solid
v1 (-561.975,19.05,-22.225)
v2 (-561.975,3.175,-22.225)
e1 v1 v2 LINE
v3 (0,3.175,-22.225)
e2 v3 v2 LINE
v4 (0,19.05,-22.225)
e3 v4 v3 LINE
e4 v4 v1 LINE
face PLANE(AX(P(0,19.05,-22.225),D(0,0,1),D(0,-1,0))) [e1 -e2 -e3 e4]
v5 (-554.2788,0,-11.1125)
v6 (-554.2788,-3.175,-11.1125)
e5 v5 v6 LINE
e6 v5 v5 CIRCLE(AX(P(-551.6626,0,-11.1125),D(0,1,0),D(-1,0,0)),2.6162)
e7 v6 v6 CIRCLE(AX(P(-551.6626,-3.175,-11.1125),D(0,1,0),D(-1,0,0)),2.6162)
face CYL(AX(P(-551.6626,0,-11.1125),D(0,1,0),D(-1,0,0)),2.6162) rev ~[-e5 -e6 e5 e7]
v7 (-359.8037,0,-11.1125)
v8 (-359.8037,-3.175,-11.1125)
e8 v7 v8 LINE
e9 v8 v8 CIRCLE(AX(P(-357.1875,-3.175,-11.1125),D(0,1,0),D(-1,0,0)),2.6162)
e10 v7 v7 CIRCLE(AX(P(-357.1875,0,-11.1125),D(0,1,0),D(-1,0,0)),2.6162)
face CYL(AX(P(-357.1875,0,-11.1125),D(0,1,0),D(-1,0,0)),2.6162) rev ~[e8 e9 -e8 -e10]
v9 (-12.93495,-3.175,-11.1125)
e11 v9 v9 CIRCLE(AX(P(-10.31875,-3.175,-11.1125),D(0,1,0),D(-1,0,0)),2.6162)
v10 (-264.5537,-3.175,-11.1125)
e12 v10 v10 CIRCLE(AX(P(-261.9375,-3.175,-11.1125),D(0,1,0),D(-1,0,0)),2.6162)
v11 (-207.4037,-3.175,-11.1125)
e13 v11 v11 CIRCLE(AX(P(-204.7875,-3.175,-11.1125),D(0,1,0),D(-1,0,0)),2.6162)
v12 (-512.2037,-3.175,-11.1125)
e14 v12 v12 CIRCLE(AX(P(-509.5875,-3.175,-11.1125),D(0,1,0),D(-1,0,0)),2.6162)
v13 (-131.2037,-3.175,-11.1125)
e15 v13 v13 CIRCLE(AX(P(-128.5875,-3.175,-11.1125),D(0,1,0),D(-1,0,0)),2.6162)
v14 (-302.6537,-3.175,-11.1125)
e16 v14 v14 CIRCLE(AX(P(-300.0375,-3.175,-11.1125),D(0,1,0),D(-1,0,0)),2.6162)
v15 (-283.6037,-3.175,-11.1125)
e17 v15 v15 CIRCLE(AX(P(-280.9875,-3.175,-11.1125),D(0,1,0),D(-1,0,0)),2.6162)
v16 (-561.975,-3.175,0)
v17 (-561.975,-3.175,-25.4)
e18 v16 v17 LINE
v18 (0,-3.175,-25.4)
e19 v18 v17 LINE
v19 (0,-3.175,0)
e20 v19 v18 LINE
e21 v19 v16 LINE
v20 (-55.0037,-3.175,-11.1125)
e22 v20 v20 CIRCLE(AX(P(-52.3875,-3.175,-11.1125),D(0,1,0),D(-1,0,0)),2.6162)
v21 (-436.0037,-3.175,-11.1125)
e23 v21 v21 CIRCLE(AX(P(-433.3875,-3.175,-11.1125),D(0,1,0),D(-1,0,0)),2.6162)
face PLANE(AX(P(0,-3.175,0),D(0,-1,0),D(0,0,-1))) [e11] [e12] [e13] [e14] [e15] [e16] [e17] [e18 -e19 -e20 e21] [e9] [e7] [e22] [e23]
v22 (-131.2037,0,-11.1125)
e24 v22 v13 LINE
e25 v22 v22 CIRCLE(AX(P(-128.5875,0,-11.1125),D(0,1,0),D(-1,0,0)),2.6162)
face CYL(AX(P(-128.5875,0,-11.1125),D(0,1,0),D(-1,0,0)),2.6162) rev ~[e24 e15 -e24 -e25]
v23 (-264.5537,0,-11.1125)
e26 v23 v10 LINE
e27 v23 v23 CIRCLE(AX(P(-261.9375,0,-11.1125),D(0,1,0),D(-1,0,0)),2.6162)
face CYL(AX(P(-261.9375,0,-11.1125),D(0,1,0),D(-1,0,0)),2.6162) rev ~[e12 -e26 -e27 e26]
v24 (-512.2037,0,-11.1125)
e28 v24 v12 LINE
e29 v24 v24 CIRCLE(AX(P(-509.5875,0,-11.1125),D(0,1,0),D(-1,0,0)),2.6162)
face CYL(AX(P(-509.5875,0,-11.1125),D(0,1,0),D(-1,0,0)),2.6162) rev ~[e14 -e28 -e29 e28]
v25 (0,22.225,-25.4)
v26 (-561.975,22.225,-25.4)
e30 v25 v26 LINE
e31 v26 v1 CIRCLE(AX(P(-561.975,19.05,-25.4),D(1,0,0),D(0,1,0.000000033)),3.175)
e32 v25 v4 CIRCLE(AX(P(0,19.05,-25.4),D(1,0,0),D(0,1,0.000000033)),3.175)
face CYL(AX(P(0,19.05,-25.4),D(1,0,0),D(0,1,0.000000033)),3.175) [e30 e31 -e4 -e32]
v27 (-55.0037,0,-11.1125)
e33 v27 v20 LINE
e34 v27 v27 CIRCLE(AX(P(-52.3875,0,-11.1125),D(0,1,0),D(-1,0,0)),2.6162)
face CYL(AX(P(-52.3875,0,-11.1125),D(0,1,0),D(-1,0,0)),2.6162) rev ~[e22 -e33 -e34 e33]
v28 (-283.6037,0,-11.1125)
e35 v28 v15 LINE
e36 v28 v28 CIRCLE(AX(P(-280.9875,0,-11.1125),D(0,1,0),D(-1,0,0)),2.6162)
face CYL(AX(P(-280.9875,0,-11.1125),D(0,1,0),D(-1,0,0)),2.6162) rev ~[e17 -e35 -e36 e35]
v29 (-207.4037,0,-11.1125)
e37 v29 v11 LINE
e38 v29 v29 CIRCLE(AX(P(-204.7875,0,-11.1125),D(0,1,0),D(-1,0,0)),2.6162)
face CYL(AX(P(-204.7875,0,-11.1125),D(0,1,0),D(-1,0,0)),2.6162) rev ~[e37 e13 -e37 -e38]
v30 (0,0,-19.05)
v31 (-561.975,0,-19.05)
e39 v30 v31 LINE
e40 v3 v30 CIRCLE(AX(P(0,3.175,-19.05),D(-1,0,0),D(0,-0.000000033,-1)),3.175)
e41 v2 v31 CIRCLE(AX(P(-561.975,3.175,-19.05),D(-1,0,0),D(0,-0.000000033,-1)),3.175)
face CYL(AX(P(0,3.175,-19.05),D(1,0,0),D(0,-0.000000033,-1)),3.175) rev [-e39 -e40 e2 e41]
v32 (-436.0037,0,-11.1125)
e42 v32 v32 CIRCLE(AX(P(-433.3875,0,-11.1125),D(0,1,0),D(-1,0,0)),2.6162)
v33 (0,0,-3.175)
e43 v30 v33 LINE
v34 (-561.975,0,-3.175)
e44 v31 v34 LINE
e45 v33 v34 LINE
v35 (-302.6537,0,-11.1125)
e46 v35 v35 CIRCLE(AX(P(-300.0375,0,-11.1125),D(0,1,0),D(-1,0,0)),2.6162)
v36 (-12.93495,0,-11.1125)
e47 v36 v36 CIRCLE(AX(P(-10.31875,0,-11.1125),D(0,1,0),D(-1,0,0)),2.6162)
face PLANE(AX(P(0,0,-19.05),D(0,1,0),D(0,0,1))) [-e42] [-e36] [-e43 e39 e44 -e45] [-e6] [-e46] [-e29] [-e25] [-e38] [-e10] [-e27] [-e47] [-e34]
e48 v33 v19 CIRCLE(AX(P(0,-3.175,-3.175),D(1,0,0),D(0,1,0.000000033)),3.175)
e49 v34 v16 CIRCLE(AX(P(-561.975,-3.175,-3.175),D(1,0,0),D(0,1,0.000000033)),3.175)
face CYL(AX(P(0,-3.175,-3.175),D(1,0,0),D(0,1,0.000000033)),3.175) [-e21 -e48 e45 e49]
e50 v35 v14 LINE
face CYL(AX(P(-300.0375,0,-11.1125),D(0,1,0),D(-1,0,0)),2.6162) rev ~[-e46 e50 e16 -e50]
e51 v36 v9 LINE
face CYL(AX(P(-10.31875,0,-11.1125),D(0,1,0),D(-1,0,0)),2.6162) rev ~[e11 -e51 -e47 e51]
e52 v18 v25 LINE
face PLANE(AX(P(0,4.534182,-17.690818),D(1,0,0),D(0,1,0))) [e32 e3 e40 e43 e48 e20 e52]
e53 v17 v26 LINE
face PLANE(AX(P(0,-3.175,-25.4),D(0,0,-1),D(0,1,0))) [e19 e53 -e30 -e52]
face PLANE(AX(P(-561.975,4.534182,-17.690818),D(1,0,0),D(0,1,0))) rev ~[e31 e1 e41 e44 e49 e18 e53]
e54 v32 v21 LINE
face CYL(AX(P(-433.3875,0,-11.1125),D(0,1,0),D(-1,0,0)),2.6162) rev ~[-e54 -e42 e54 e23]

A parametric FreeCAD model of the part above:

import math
import FreeCAD as App
import Part
import Sketcher
from FreeCAD import Vector
Q = App.Units.Quantity

doc = App.newDocument("Part")
params = doc.addObject("Spreadsheet::Sheet", "Params")
for row, (alias, value) in enumerate([
    ("sketch1_width", "1 in"),
    ("sketch1_radius", "0.125 in"),
    ("pad1_length", "22.125 in"),
    ("sketch2_diameter", "0.206 in"),
    ("pocket1_length", "1 in"),
], start=1):
    params.set(f"A{row}", alias)
    params.set(f"B{row}", "=" + value)
    params.setAlias(f"B{row}", alias)

body = doc.addObject("PartDesign::Body", "Body")

sketch1 = doc.addObject("Sketcher::SketchObject", "Sketch")
body.addObject(sketch1)
sketch1.AttachmentSupport = (doc.YZ_Plane, [""])
sketch1.MapMode = "FlatFace"
sketch1.addGeometry([
    Part.LineSegment(Vector(0, -19.1, 0), Vector(0, -3.2, 0)),
    Part.ArcOfCircle(Part.Circle(Vector(-3.2, -3.2, 0), Vector(0, 0, 1), 3.2), math.radians(0), math.radians(90)),
    Part.LineSegment(Vector(-3.2, 0, 0), Vector(-3.2, -25.4, 0)),
    Part.LineSegment(Vector(-3.2, -25.4, 0), Vector(22.2, -25.4, 0)),
    Part.ArcOfCircle(Part.Circle(Vector(19, -25.4, 0), Vector(0, 0, 1), 3.2), math.radians(0), math.radians(90)),
    Part.LineSegment(Vector(19.1, -22.2, 0), Vector(3.2, -22.2, 0)),
    Part.ArcOfCircle(Part.Circle(Vector(3.2, -19, 0), Vector(0, 0, 1), 3.2), math.radians(-180), math.radians(-90)),
], False)
sketch1.addConstraint([
    Sketcher.Constraint("Tangent", 0, 2, 1, 1),
    Sketcher.Constraint("Coincident", 1, 2, 2, 1),
    Sketcher.Constraint("Coincident", 2, 2, 3, 1),
    Sketcher.Constraint("Coincident", 3, 2, 4, 1),
    Sketcher.Constraint("Tangent", 4, 2, 5, 1),
    Sketcher.Constraint("Tangent", 5, 2, 6, 2),
    Sketcher.Constraint("Tangent", 6, 1, 0, 1),
    Sketcher.Constraint("Vertical", 0),
    Sketcher.Constraint("Vertical", 2),
    Sketcher.Constraint("Horizontal", 3),
    Sketcher.Constraint("Horizontal", 5),
    Sketcher.Constraint("Equal", 1, 4),
    Sketcher.Constraint("Equal", 4, 6),
    Sketcher.Constraint("PointOnObject", 0, 2, -2),
    Sketcher.Constraint("PointOnObject", 1, 2, -1),
    Sketcher.Constraint("Horizontal", 4, 3, 2, 2),
    Sketcher.Constraint("Equal", 5, 0),
    Sketcher.Constraint("Equal", 3, 2),
    Sketcher.Constraint("DistanceX", 3, 1, 3, 2, Q("1 in")),
    Sketcher.Constraint("Radius", 1, Q("0.125 in")),
])
sketch1.setExpression("Constraints[18]", "Params.sketch1_width")
sketch1.setExpression("Constraints[19]", "Params.sketch1_radius")
pad1 = doc.addObject("PartDesign::Pad", "Pad")
body.addObject(pad1)
pad1.Profile = sketch1
pad1.setExpression("Length", "Params.pad1_length")
pad1.Reversed = True

sketch2 = doc.addObject("Sketcher::SketchObject", "Sketch001")
body.addObject(sketch2)
sketch2.AttachmentSupport = (doc.XZ_Plane, [""])
sketch2.MapMode = "FlatFace"
sketch2.addGeometry([
    Part.Circle(Vector(-10.3, -11.1, 0), Vector(0, 0, 1), 2.6),
    Part.Circle(Vector(-281, -11.1, 0), Vector(0, 0, 1), 2.6),
    Part.Circle(Vector(-551.7, -11.1, 0), Vector(0, 0, 1), 2.6),
    Part.Circle(Vector(-128.6, -11.1, 0), Vector(0, 0, 1), 2.6),
    Part.Circle(Vector(-204.8, -11.1, 0), Vector(0, 0, 1), 2.6),
    Part.Circle(Vector(-357.2, -11.1, 0), Vector(0, 0, 1), 2.6),
    Part.Circle(Vector(-433.4, -11.1, 0), Vector(0, 0, 1), 2.6),
    Part.Circle(Vector(-509.6, -11.1, 0), Vector(0, 0, 1), 2.6),
    Part.Circle(Vector(-52.4, -11.1, 0), Vector(0, 0, 1), 2.6),
    Part.Circle(Vector(-261.9, -11.1, 0), Vector(0, 0, 1), 2.6),
    Part.Circle(Vector(-300, -11.1, 0), Vector(0, 0, 1), 2.6),
], False)
sketch2.addConstraint([
    Sketcher.Constraint("Equal", 0, 1),
    Sketcher.Constraint("Equal", 1, 2),
    Sketcher.Constraint("Equal", 2, 3),
    Sketcher.Constraint("Equal", 3, 4),
    Sketcher.Constraint("Equal", 4, 5),
    Sketcher.Constraint("Equal", 5, 6),
    Sketcher.Constraint("Equal", 6, 7),
    Sketcher.Constraint("Equal", 7, 8),
    Sketcher.Constraint("Equal", 8, 9),
    Sketcher.Constraint("Equal", 9, 10),
    Sketcher.Constraint("Horizontal", 0, 3, 1, 3),
    Sketcher.Constraint("Horizontal", 1, 3, 2, 3),
    Sketcher.Constraint("Horizontal", 2, 3, 3, 3),
    Sketcher.Constraint("Horizontal", 3, 3, 4, 3),
    Sketcher.Constraint("Horizontal", 4, 3, 5, 3),
    Sketcher.Constraint("Horizontal", 5, 3, 6, 3),
    Sketcher.Constraint("Horizontal", 6, 3, 7, 3),
    Sketcher.Constraint("Horizontal", 7, 3, 8, 3),
    Sketcher.Constraint("Horizontal", 8, 3, 9, 3),
    Sketcher.Constraint("Horizontal", 9, 3, 10, 3),
    Sketcher.Constraint("Diameter", 0, Q("0.206 in")),
    Sketcher.Constraint("DistanceX", 1, 3, 3, 3, Q("6 in")),
    Sketcher.Constraint("DistanceX", 4, 3, 3, 3, Q("3 in")),
    Sketcher.Constraint("DistanceX", 5, 3, 1, 3, Q("3 in")),
    Sketcher.Constraint("DistanceX", 6, 3, 5, 3, Q("3 in")),
    Sketcher.Constraint("DistanceX", 7, 3, 6, 3, Q("3 in")),
    Sketcher.Constraint("DistanceX", 3, 3, 8, 3, Q("3 in")),
    Sketcher.Constraint("DistanceX", 10, 3, 9, 3, Q("1.5 in")),
    Sketcher.Constraint("DistanceX", 1, 3, 9, 3, Q("0.75 in")),
    Sketcher.Constraint("DistanceX", 0, 3, -1, 1, Q("0.40625 in")),
    Sketcher.Constraint("DistanceY", 0, 3, -1, 1, Q("0.4375 in")),
    Sketcher.Constraint("DistanceX", 1, 3, -1, 1, Q("11.0625 in")),
    Sketcher.Constraint("DistanceX", 2, 3, -1, 1, Q("21.719 in")),
])
sketch2.setExpression("Constraints[20]", "Params.sketch2_diameter")
pocket1 = doc.addObject("PartDesign::Pocket", "Pocket")
body.addObject(pocket1)
pocket1.Profile = sketch2
pocket1.setExpression("Length", "Params.pocket1_length")
pocket1.Reversed = True

doc.recompute()
